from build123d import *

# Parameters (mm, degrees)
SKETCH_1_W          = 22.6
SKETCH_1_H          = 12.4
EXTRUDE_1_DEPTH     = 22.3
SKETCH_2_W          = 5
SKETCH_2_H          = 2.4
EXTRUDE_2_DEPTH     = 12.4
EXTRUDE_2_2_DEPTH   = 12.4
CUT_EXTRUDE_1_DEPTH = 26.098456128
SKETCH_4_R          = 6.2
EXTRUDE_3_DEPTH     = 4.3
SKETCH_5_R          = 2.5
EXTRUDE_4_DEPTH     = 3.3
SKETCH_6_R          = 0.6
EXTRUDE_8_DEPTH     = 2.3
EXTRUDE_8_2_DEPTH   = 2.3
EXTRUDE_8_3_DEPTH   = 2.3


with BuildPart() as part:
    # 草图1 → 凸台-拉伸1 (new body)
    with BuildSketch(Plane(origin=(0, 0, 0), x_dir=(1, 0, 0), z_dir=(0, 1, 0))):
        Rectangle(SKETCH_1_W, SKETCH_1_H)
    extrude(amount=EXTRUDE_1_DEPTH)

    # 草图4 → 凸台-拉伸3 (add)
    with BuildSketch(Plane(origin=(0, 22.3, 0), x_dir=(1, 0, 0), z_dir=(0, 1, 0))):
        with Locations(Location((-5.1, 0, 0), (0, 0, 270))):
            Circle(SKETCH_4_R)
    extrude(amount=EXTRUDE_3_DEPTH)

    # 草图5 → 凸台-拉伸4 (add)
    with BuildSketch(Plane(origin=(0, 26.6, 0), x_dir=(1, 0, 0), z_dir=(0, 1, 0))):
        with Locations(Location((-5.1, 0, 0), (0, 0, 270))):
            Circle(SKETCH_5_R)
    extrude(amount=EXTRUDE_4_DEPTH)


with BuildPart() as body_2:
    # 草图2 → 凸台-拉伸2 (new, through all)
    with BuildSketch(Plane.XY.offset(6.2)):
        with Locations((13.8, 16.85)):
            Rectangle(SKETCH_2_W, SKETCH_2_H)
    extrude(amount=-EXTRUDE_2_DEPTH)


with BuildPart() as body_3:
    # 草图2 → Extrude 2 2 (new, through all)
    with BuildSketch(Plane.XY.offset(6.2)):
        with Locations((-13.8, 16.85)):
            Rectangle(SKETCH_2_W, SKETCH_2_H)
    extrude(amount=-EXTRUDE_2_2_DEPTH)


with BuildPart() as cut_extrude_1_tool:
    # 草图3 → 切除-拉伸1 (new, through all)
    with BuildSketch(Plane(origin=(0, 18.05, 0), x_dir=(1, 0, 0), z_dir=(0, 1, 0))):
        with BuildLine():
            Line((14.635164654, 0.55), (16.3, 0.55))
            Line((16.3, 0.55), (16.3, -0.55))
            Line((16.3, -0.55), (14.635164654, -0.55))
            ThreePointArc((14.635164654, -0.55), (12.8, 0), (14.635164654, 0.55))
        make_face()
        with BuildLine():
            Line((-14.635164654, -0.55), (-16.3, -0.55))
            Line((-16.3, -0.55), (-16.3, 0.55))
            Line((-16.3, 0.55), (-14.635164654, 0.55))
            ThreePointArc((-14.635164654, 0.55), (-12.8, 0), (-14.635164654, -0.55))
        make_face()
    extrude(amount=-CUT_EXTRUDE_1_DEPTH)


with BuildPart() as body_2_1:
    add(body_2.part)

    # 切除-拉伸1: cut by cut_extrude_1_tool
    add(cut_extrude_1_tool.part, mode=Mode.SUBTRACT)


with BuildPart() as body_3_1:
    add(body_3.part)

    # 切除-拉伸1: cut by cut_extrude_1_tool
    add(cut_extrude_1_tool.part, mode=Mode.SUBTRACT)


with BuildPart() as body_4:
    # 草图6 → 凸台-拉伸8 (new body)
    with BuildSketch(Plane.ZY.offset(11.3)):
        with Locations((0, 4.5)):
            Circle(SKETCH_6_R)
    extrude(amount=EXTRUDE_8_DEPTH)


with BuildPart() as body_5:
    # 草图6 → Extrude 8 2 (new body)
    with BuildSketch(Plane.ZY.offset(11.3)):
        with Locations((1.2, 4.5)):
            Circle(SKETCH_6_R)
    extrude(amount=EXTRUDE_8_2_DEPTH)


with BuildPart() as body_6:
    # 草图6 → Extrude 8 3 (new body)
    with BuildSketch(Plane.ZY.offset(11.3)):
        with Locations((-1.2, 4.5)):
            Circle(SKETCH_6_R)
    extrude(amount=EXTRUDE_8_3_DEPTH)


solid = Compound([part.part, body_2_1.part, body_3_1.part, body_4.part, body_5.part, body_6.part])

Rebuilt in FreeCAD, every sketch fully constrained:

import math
import FreeCAD as App
import Part
import Sketcher

V = App.Vector

doc = App.newDocument("Part")
body = doc.addObject("PartDesign::Body", "Body")

sketch1 = body.newObject("Sketcher::SketchObject", "Sketch")
sketch1.AttachmentSupport = (doc.getObject("XZ_Plane"), [""])
sketch1.MapMode = "FlatFace"
sketch1.addGeometry([
    Part.LineSegment(V(-11.3, -6.2, 0), V(-11.3, 6.2, 0)),
    Part.LineSegment(V(-11.3, 6.2, 0), V(11.3, 6.2, 0)),
    Part.LineSegment(V(11.3, 6.2, 0), V(11.3, -6.2, 0)),
    Part.LineSegment(V(11.3, -6.2, 0), V(-11.3, -6.2, 0)),
], False)
sketch1.addConstraint([
    Sketcher.Constraint("Coincident", 0, 2, 1, 1),
    Sketcher.Constraint("Coincident", 1, 2, 2, 1),
    Sketcher.Constraint("Coincident", 2, 2, 3, 1),
    Sketcher.Constraint("Coincident", 3, 2, 0, 1),
    Sketcher.Constraint("Vertical", 0),
    Sketcher.Constraint("Horizontal", 1),
    Sketcher.Constraint("Vertical", 2),
    Sketcher.Constraint("Horizontal", 3),
    Sketcher.Constraint("Symmetric", 0, 2, 2, 2, -1, 1),
    Sketcher.Constraint("DistanceX", 1, 1, 1, 2, 22.6),
    Sketcher.Constraint("DistanceY", 0, 1, 0, 2, 12.4),
])
pad1 = body.newObject("PartDesign::Pad", "Pad")
pad1.Profile = sketch1
pad1.Length = 22.3
pad1.Reversed = True

sketch2 = body.newObject("Sketcher::SketchObject", "Sketch001")
sketch2.AttachmentSupport = (doc.getObject("XZ_Plane"), [""])
sketch2.MapMode = "FlatFace"
sketch2.AttachmentOffset = App.Placement(V(0, 0, -22.3), App.Rotation())
sketch2.addGeometry(Part.Circle(V(-5.1, 0, 0), V(0, 0, 1), 6.2), False)
sketch2.addConstraint([
    Sketcher.Constraint("PointOnObject", 0, 3, -1),
    Sketcher.Constraint("Diameter", 0, 12.4),
    Sketcher.Constraint("DistanceX", 0, 3, -1, 1, 5.1),
])
pad2 = body.newObject("PartDesign::Pad", "Pad001")
pad2.Profile = sketch2
pad2.Length = 4.3
pad2.Reversed = True

sketch3 = body.newObject("Sketcher::SketchObject", "Sketch002")
sketch3.AttachmentSupport = (doc.getObject("XZ_Plane"), [""])
sketch3.MapMode = "FlatFace"
sketch3.AttachmentOffset = App.Placement(V(0, 0, -26.6), App.Rotation())
sketch3.addGeometry(Part.Circle(V(-5.1, 0, 0), V(0, 0, 1), 2.5), False)
sketch3.addConstraint([
    Sketcher.Constraint("PointOnObject", 0, 3, -1),
    Sketcher.Constraint("Diameter", 0, 5.0),
    Sketcher.Constraint("DistanceX", 0, 3, -1, 1, 5.1),
])
pad3 = body.newObject("PartDesign::Pad", "Pad002")
pad3.Profile = sketch3
pad3.Length = 3.3
pad3.Reversed = True
body2 = doc.addObject("PartDesign::Body", "Body001")

sketch4 = body2.newObject("Sketcher::SketchObject", "Sketch003")
sketch4.AttachmentSupport = (doc.getObject("XY_Plane001"), [""])
sketch4.MapMode = "FlatFace"
sketch4.AttachmentOffset = App.Placement(V(0, 0, 6.2), App.Rotation())
sketch4.addGeometry([
    Part.LineSegment(V(11.3, 18.05, 0), V(11.3, 15.65, 0)),
    Part.LineSegment(V(11.3, 15.65, 0), V(16.3, 15.65, 0)),
    Part.LineSegment(V(16.3, 15.65, 0), V(16.3, 18.05, 0)),
    Part.LineSegment(V(16.3, 18.05, 0), V(11.3, 18.05, 0)),
], False)
sketch4.addConstraint([
    Sketcher.Constraint("Coincident", 0, 2, 1, 1),
    Sketcher.Constraint("Coincident", 1, 2, 2, 1),
    Sketcher.Constraint("Coincident", 2, 2, 3, 1),
    Sketcher.Constraint("Coincident", 3, 2, 0, 1),
    Sketcher.Constraint("Vertical", 0),
    Sketcher.Constraint("Horizontal", 1),
    Sketcher.Constraint("Vertical", 2),
    Sketcher.Constraint("Horizontal", 3),
    Sketcher.Constraint("DistanceX", 1, 1, 1, 2, 5.0),
    Sketcher.Constraint("DistanceY", 0, 2, 0, 1, 2.4),
    Sketcher.Constraint("DistanceX", -1, 1, 0, 2, 11.3),
    Sketcher.Constraint("DistanceY", -1, 1, 0, 2, 15.65),
])
pad4 = body2.newObject("PartDesign::Pad", "Pad003")
pad4.Profile = sketch4
pad4.Length = 12.4
pad4.Reversed = True
body3 = doc.addObject("PartDesign::Body", "Body002")

sketch5 = body3.newObject("Sketcher::SketchObject", "Sketch004")
sketch5.AttachmentSupport = (doc.getObject("XY_Plane002"), [""])
sketch5.MapMode = "FlatFace"
sketch5.AttachmentOffset = App.Placement(V(0, 0, 6.2), App.Rotation())
sketch5.addGeometry([
    Part.LineSegment(V(-16.3, 18.05, 0), V(-16.3, 15.65, 0)),
    Part.LineSegment(V(-16.3, 15.65, 0), V(-11.3, 15.65, 0)),
    Part.LineSegment(V(-11.3, 15.65, 0), V(-11.3, 18.05, 0)),
    Part.LineSegment(V(-11.3, 18.05, 0), V(-16.3, 18.05, 0)),
], False)
sketch5.addConstraint([
    Sketcher.Constraint("Coincident", 0, 2, 1, 1),
    Sketcher.Constraint("Coincident", 1, 2, 2, 1),
    Sketcher.Constraint("Coincident", 2, 2, 3, 1),
    Sketcher.Constraint("Coincident", 3, 2, 0, 1),
    Sketcher.Constraint("Vertical", 0),
    Sketcher.Constraint("Horizontal", 1),
    Sketcher.Constraint("Vertical", 2),
    Sketcher.Constraint("Horizontal", 3),
    Sketcher.Constraint("DistanceX", 1, 1, 1, 2, 5.0),
    Sketcher.Constraint("DistanceY", 0, 2, 0, 1, 2.4),
    Sketcher.Constraint("DistanceX", 0, 2, -1, 1, 16.3),
    Sketcher.Constraint("DistanceY", -1, 1, 0, 2, 15.65),
])
pad5 = body3.newObject("PartDesign::Pad", "Pad004")
pad5.Profile = sketch5
pad5.Length = 12.4
pad5.Reversed = True
body4 = doc.addObject("PartDesign::Body", "Body003")
body4.AllowCompound = True

sketch6 = body4.newObject("Sketcher::SketchObject", "Sketch005")
sketch6.AttachmentSupport = (doc.getObject("XZ_Plane003"), [""])
sketch6.MapMode = "FlatFace"
sketch6.AttachmentOffset = App.Placement(V(0, 0, -18.05), App.Rotation())
sketch6.addGeometry([
    Part.LineSegment(V(16.3, -0.55, 0), V(14.635165, -0.55, 0)),
    Part.ArcOfCircle(Part.Circle(V(13.8, 0, 0), V(0, 0, 1), 1), math.radians(33.367013), math.radians(326.632987)),
    Part.LineSegment(V(14.635165, 0.55, 0), V(16.3, 0.55, 0)),
    Part.LineSegment(V(16.3, 0.55, 0), V(16.3, -0.55, 0)),
    Part.LineSegment(V(-16.3, 0.55, 0), V(-14.635165, 0.55, 0)),
    Part.ArcOfCircle(Part.Circle(V(-13.8, 0, 0), V(0, 0, 1), 1), math.radians(-146.632987), math.radians(146.632987)),
    Part.LineSegment(V(-14.635165, -0.55, 0), V(-16.3, -0.55, 0)),
    Part.LineSegment(V(-16.3, -0.55, 0), V(-16.3, 0.55, 0)),
], False)
sketch6.addConstraint([
    Sketcher.Constraint("Coincident", 0, 2, 1, 2),
    Sketcher.Constraint("Coincident", 1, 1, 2, 1),
    Sketcher.Constraint("Coincident", 2, 2, 3, 1),
    Sketcher.Constraint("Coincident", 3, 2, 0, 1),
    Sketcher.Constraint("Coincident", 4, 2, 5, 2),
    Sketcher.Constraint("Coincident", 5, 1, 6, 1),
    Sketcher.Constraint("Coincident", 6, 2, 7, 1),
    Sketcher.Constraint("Coincident", 7, 2, 4, 1),
    Sketcher.Constraint("Horizontal", 0),
    Sketcher.Constraint("Horizontal", 2),
    Sketcher.Constraint("Vertical", 3),
    Sketcher.Constraint("Horizontal", 4),
    Sketcher.Constraint("Horizontal", 6),
    Sketcher.Constraint("Vertical", 7),
    Sketcher.Constraint("Equal", 1, 5),
    Sketcher.Constraint("Symmetric", 1, 3, 5, 3, -1, 1),
    Sketcher.Constraint("Symmetric", 2, 2, 6, 2, -1, 1),
    Sketcher.Constraint("Symmetric", 1, 1, 4, 2, -2),
    Sketcher.Constraint("Horizontal", 3, 2, 5, 1),
    Sketcher.Constraint("Radius", 1, 1.0),
    Sketcher.Constraint("DistanceY", 3, 2, 3, 1, 1.1),
    Sketcher.Constraint("DistanceX", -1, 1, 1, 3, 13.8),
    Sketcher.Constraint("DistanceX", -1, 1, 2, 2, 16.3),
])
pad6 = body4.newObject("PartDesign::Pad", "Pad005")
pad6.Profile = sketch6
pad6.Length = 26.098456
doc.recompute()

body5 = doc.addObject("PartDesign::Body", "Body004")
body5.BaseFeature = body4
boolean = body2.newObject("PartDesign::Boolean", "Boolean")
boolean.Type = "Cut"
boolean.addObjects([body5])
doc.recompute()

boolean2 = body3.newObject("PartDesign::Boolean", "Boolean001")
boolean2.Type = "Cut"
boolean2.addObjects([body4])
body6 = doc.addObject("PartDesign::Body", "Body005")

sketch7 = body6.newObject("Sketcher::SketchObject", "Sketch006")
sketch7.AttachmentSupport = (doc.getObject("YZ_Plane005"), [""])
sketch7.MapMode = "FlatFace"
sketch7.AttachmentOffset = App.Placement(V(0, 0, -11.3), App.Rotation())
sketch7.addGeometry(Part.Circle(V(4.5, 0, 0), V(0, 0, 1), 0.6), False)
sketch7.addConstraint([
    Sketcher.Constraint("PointOnObject", 0, 3, -1),
    Sketcher.Constraint("Diameter", 0, 1.2),
    Sketcher.Constraint("DistanceX", -1, 1, 0, 3, 4.5),
])
pad7 = body6.newObject("PartDesign::Pad", "Pad006")
pad7.Profile = sketch7
pad7.Length = 2.3
pad7.Reversed = True
body7 = doc.addObject("PartDesign::Body", "Body006")

sketch8 = body7.newObject("Sketcher::SketchObject", "Sketch007")
sketch8.AttachmentSupport = (doc.getObject("YZ_Plane006"), [""])
sketch8.MapMode = "FlatFace"
sketch8.AttachmentOffset = App.Placement(V(0, 0, -11.3), App.Rotation())
sketch8.addGeometry(Part.Circle(V(4.5, 1.2, 0), V(0, 0, 1), 0.6), False)
sketch8.addConstraint([
    Sketcher.Constraint("Diameter", 0, 1.2),
    Sketcher.Constraint("DistanceX", -1, 1, 0, 3, 4.5),
    Sketcher.Constraint("DistanceY", -1, 1, 0, 3, 1.2),
])
pad8 = body7.newObject("PartDesign::Pad", "Pad007")
pad8.Profile = sketch8
pad8.Length = 2.3
pad8.Reversed = True
body8 = doc.addObject("PartDesign::Body", "Body007")

sketch9 = body8.newObject("Sketcher::SketchObject", "Sketch008")
sketch9.AttachmentSupport = (doc.getObject("YZ_Plane007"), [""])
sketch9.MapMode = "FlatFace"
sketch9.AttachmentOffset = App.Placement(V(0, 0, -11.3), App.Rotation())
sketch9.addGeometry(Part.Circle(V(4.5, -1.2, 0), V(0, 0, 1), 0.6), False)
sketch9.addConstraint([
    Sketcher.Constraint("Diameter", 0, 1.2),
    Sketcher.Constraint("DistanceX", -1, 1, 0, 3, 4.5),
    Sketcher.Constraint("DistanceY", 0, 3, -1, 1, 1.2),
])
pad9 = body8.newObject("PartDesign::Pad", "Pad008")
pad9.Profile = sketch9
pad9.Length = 2.3
pad9.Reversed = True

doc.recompute()
